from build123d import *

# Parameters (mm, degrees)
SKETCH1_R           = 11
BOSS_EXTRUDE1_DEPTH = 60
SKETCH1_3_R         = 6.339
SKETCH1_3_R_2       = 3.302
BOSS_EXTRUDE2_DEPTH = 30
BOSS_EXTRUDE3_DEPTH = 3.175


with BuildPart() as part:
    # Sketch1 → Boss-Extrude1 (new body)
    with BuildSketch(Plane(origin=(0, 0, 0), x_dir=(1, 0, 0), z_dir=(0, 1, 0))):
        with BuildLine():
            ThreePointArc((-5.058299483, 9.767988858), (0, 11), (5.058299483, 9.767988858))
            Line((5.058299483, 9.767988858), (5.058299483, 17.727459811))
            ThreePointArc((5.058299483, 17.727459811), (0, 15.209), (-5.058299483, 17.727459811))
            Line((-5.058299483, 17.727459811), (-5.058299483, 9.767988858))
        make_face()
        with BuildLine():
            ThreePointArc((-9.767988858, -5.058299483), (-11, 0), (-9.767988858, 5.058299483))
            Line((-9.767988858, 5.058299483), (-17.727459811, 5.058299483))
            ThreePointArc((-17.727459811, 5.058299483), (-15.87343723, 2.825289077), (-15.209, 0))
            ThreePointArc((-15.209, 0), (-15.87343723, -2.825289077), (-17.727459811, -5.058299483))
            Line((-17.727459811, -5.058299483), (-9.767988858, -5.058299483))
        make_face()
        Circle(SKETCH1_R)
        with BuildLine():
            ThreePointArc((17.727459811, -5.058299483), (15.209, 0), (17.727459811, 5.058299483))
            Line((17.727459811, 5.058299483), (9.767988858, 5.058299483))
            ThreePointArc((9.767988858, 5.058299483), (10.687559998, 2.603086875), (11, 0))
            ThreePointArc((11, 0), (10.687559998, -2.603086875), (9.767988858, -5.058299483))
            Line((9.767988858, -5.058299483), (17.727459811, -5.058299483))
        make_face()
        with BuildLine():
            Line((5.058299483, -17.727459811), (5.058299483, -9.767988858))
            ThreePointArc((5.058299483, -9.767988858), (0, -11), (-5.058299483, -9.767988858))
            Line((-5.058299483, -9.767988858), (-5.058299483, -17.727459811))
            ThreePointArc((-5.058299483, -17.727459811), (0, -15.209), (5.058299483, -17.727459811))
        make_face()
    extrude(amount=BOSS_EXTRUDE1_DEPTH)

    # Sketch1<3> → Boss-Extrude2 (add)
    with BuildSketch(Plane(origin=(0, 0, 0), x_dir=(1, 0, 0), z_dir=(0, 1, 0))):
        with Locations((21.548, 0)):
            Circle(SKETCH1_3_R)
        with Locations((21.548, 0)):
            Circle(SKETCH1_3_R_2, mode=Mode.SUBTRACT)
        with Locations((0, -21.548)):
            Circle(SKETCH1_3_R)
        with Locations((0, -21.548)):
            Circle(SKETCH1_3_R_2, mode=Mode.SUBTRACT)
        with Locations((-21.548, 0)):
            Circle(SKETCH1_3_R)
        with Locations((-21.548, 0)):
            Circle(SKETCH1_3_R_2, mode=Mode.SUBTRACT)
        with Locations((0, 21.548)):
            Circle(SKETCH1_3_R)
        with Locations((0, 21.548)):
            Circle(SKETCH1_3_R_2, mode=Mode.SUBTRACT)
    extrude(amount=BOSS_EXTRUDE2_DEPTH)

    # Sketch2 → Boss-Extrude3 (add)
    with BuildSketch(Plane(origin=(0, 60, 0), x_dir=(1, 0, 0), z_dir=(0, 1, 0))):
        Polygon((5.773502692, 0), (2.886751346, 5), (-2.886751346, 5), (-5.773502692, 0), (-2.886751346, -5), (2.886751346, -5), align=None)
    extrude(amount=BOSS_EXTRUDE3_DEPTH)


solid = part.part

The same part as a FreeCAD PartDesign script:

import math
import FreeCAD as App
import Part
import Sketcher
Q = App.Units.Quantity


def add_polygon(sketch, points):
    """Adds a closed chain of lines whose ends are joined by coincident constraints."""
    first, n = sketch.GeometryCount, len(points)
    for a, b in zip(points, points[1:] + points[:1]):
        sketch.addGeometry(Part.LineSegment(App.Vector(*a, 0), App.Vector(*b, 0)), False)
    for i in range(n):
        sketch.addConstraint(Sketcher.Constraint("Coincident", first + i, 2, first + (i + 1) % n, 1))

doc = App.newDocument("Part")
body = doc.addObject("PartDesign::Body", "Body")

# Sketch on XZ plane
sketch1 = body.newObject("Sketcher::SketchObject", "Sketch")
sketch1.AttachmentSupport = (doc.getObject("XZ_Plane"), [""])
sketch1.MapMode = "FlatFace"
sketch1.addGeometry(Part.LineSegment(App.Vector(5, -10, 0), App.Vector(5, -18, 0)), False)
sketch1.addGeometry(Part.ArcOfCircle(Part.Circle(App.Vector(0, -22, 0), App.Vector(0, 0, 1), 6), math.radians(37), math.radians(143)), False)
sketch1.addGeometry(Part.LineSegment(App.Vector(-5, -18, 0), App.Vector(-5, -10, 0)), False)
sketch1.addGeometry(Part.ArcOfCircle(Part.Circle(App.Vector(0, 0, 0), App.Vector(0, 0, 1), 11), math.radians(-153), math.radians(-117)), False)
sketch1.addGeometry(Part.LineSegment(App.Vector(-10, -5, 0), App.Vector(-18, -5, 0)), False)
sketch1.addGeometry(Part.ArcOfCircle(Part.Circle(App.Vector(-22, 0, 0), App.Vector(0, 0, 1), 6), math.radians(-53), math.radians(0)), False)
sketch1.addGeometry(Part.ArcOfCircle(Part.Circle(App.Vector(-22, 0, 0), App.Vector(0, 0, 1), 6), math.radians(0), math.radians(53)), False)
sketch1.addGeometry(Part.LineSegment(App.Vector(-18, 5, 0), App.Vector(-10, 5, 0)), False)
sketch1.addGeometry(Part.ArcOfCircle(Part.Circle(App.Vector(0, 0, 0), App.Vector(0, 0, 1), 11), math.radians(117), math.radians(153)), False)
sketch1.addGeometry(Part.LineSegment(App.Vector(-5, 10, 0), App.Vector(-5, 18, 0)), False)
sketch1.addGeometry(Part.ArcOfCircle(Part.Circle(App.Vector(0, 22, 0), App.Vector(0, 0, 1), 6), math.radians(-143), math.radians(-37)), False)
sketch1.addGeometry(Part.LineSegment(App.Vector(5, 18, 0), App.Vector(5, 10, 0)), False)
sketch1.addGeometry(Part.ArcOfCircle(Part.Circle(App.Vector(0, 0, 0), App.Vector(0, 0, 1), 11), math.radians(27), math.radians(63)), False)
sketch1.addGeometry(Part.LineSegment(App.Vector(10, 5, 0), App.Vector(18, 5, 0)), False)
sketch1.addGeometry(Part.ArcOfCircle(Part.Circle(App.Vector(22, 0, 0), App.Vector(0, 0, 1), 6), math.radians(127), math.radians(233)), False)
sketch1.addGeometry(Part.LineSegment(App.Vector(18, -5, 0), App.Vector(10, -5, 0)), False)
sketch1.addGeometry(Part.ArcOfCircle(Part.Circle(App.Vector(0, 0, 0), App.Vector(0, 0, 1), 11), math.radians(-63), math.radians(-27)), False)
sketch1.addConstraint(Sketcher.Constraint("Coincident", 0, 2, 1, 1))
sketch1.addConstraint(Sketcher.Constraint("Coincident", 1, 2, 2, 1))
sketch1.addConstraint(Sketcher.Constraint("Coincident", 2, 2, 3, 2))
sketch1.addConstraint(Sketcher.Constraint("Coincident", 3, 1, 4, 1))
sketch1.addConstraint(Sketcher.Constraint("Coincident", 4, 2, 5, 1))
sketch1.addConstraint(Sketcher.Constraint("Tangent", 5, 2, 6, 1))
sketch1.addConstraint(Sketcher.Constraint("Coincident", 6, 2, 7, 1))
sketch1.addConstraint(Sketcher.Constraint("Coincident", 7, 2, 8, 2))
sketch1.addConstraint(Sketcher.Constraint("Coincident", 8, 1, 9, 1))
sketch1.addConstraint(Sketcher.Constraint("Coincident", 9, 2, 10, 1))
sketch1.addConstraint(Sketcher.Constraint("Coincident", 10, 2, 11, 1))
sketch1.addConstraint(Sketcher.Constraint("Coincident", 11, 2, 12, 2))
sketch1.addConstraint(Sketcher.Constraint("Coincident", 12, 1, 13, 1))
sketch1.addConstraint(Sketcher.Constraint("Coincident", 13, 2, 14, 1))
sketch1.addConstraint(Sketcher.Constraint("Coincident", 14, 2, 15, 1))
sketch1.addConstraint(Sketcher.Constraint("Coincident", 15, 2, 16, 2))
sketch1.addConstraint(Sketcher.Constraint("Coincident", 16, 1, 0, 1))
sketch1.addConstraint(Sketcher.Constraint("Vertical", 0))
sketch1.addConstraint(Sketcher.Constraint("Vertical", 2))
sketch1.addConstraint(Sketcher.Constraint("Horizontal", 4))
sketch1.addConstraint(Sketcher.Constraint("Horizontal", 7))
sketch1.addConstraint(Sketcher.Constraint("Vertical", 9))
sketch1.addConstraint(Sketcher.Constraint("Vertical", 11))
sketch1.addConstraint(Sketcher.Constraint("Horizontal", 13))
sketch1.addConstraint(Sketcher.Constraint("Horizontal", 15))
sketch1.addConstraint(Sketcher.Constraint("Coincident", 3, 3, -1, 1))
sketch1.addConstraint(Sketcher.Constraint("Coincident", 8, 3, -1, 1))
sketch1.addConstraint(Sketcher.Constraint("Coincident", 12, 3, -1, 1))
sketch1.addConstraint(Sketcher.Constraint("Coincident", 16, 3, -1, 1))
sketch1.addConstraint(Sketcher.Constraint("Equal", 1, 5))
sketch1.addConstraint(Sketcher.Constraint("Equal", 5, 6))
sketch1.addConstraint(Sketcher.Constraint("Equal", 3, 8))
sketch1.addConstraint(Sketcher.Constraint("Equal", 6, 10))
sketch1.addConstraint(Sketcher.Constraint("Equal", 8, 12))
sketch1.addConstraint(Sketcher.Constraint("Equal", 10, 14))
sketch1.addConstraint(Sketcher.Constraint("Equal", 12, 16))
sketch1.addConstraint(Sketcher.Constraint("Symmetric", 1, 3, 10, 3, -1, 1))
sketch1.addConstraint(Sketcher.Constraint("Symmetric", 5, 3, 14, 3, -1, 1))
sketch1.addConstraint(Sketcher.Constraint("Symmetric", 0, 2, 1, 2, -2))
sketch1.addConstraint(Sketcher.Constraint("Symmetric", 6, 2, 13, 2, -2))
sketch1.addConstraint(Sketcher.Constraint("PointOnObject", 5, 2, -1))
sketch1.addConstraint(Sketcher.Constraint("Horizontal", 9, 2, 10, 2))
sketch1.addConstraint(Sketcher.Constraint("Horizontal", 4, 2, 14, 2))
sketch1.addConstraint(Sketcher.Constraint("Vertical", 4, 2, 6, 2))
sketch1.addConstraint(Sketcher.Constraint("Vertical", 2, 2, 8, 1))
sketch1.addConstraint(Sketcher.Constraint("Equal", 15, 0))
sketch1.addConstraint(Sketcher.Constraint("Radius", 3, 11.0))
sketch1.addConstraint(Sketcher.Constraint("Radius", 1, 6.339))
sketch1.addConstraint(Sketcher.Constraint("DistanceY", 1, 3, -1, 1, 21.548))
sketch1.addConstraint(Sketcher.Constraint("DistanceX", 5, 3, -1, 1, 21.548))
sketch1.addConstraint(Sketcher.Constraint("DistanceX", 4, 2, 4, 1, 7.959471))
pad1 = body.newObject("PartDesign::Pad", "Pad")
pad1.Profile = sketch1
pad1.Length = 60
pad1.Reversed = True

# Sketch on XZ plane
sketch2 = body.newObject("Sketcher::SketchObject", "Sketch001")
sketch2.AttachmentSupport = (doc.getObject("XZ_Plane"), [""])
sketch2.MapMode = "FlatFace"
sketch2.addGeometry(Part.Circle(App.Vector(21.5, 0, 0), App.Vector(0, 0, 1), 6.3), False)
sketch2.addGeometry(Part.Circle(App.Vector(21.5, 0, 0), App.Vector(0, 0, 1), 3.3), False)
sketch2.addGeometry(Part.Circle(App.Vector(0, 21.5, 0), App.Vector(0, 0, 1), 6.3), False)
sketch2.addGeometry(Part.Circle(App.Vector(0, 21.5, 0), App.Vector(0, 0, 1), 3.3), False)
sketch2.addGeometry(Part.Circle(App.Vector(-21.5, 0, 0), App.Vector(0, 0, 1), 6.3), False)
sketch2.addGeometry(Part.Circle(App.Vector(-21.5, 0, 0), App.Vector(0, 0, 1), 3.3), False)
sketch2.addGeometry(Part.Circle(App.Vector(0, -21.5, 0), App.Vector(0, 0, 1), 6.3), False)
sketch2.addGeometry(Part.Circle(App.Vector(0, -21.5, 0), App.Vector(0, 0, 1), 3.3), False)
sketch2.addConstraint(Sketcher.Constraint("Coincident", 1, 3, 0, 3))
sketch2.addConstraint(Sketcher.Constraint("Coincident", 3, 3, 2, 3))
sketch2.addConstraint(Sketcher.Constraint("Coincident", 5, 3, 4, 3))
sketch2.addConstraint(Sketcher.Constraint("Coincident", 7, 3, 6, 3))
sketch2.addConstraint(Sketcher.Constraint("Equal", 0, 2))
sketch2.addConstraint(Sketcher.Constraint("Equal", 1, 3))
sketch2.addConstraint(Sketcher.Constraint("Equal", 2, 4))
sketch2.addConstraint(Sketcher.Constraint("Equal", 3, 5))
sketch2.addConstraint(Sketcher.Constraint("Equal", 4, 6))
sketch2.addConstraint(Sketcher.Constraint("Equal", 5, 7))
sketch2.addConstraint(Sketcher.Constraint("Symmetric", 0, 3, 4, 3, -1, 1))
sketch2.addConstraint(Sketcher.Constraint("Symmetric", 2, 3, 6, 3, -1, 1))
sketch2.addConstraint(Sketcher.Constraint("PointOnObject", 0, 3, -1))
sketch2.addConstraint(Sketcher.Constraint("PointOnObject", 2, 3, -2))
sketch2.addConstraint(Sketcher.Constraint("Diameter", 0, 12.678))
sketch2.addConstraint(Sketcher.Constraint("Diameter", 1, 6.604))
sketch2.addConstraint(Sketcher.Constraint("DistanceX", -1, 1, 0, 3, 21.548))
sketch2.addConstraint(Sketcher.Constraint("DistanceY", -1, 1, 2, 3, 21.548))
pad2 = body.newObject("PartDesign::Pad", "Pad001")
pad2.Profile = sketch2
pad2.Length = 30
pad2.Reversed = True

# Sketch on XZ plane
sketch3 = body.newObject("Sketcher::SketchObject", "Sketch002")
sketch3.AttachmentSupport = (doc.getObject("XZ_Plane"), [""])
sketch3.MapMode = "FlatFace"
sketch3.AttachmentOffset = App.Placement(App.Vector(0, 0, -60), App.Rotation())
add_polygon(sketch3, [(6, 0), (3, -5), (-3, -5), (-6, 0), (-3, 5), (3, 5)])  # lines 0-5
sketch3.addConstraint(Sketcher.Constraint("Horizontal", 1))
sketch3.addConstraint(Sketcher.Constraint("Horizontal", 4))
sketch3.addConstraint(Sketcher.Constraint("Symmetric", 0, 2, 3, 2, -1, 1))
sketch3.addConstraint(Sketcher.Constraint("Symmetric", 2, 2, 5, 2, -1, 1))
sketch3.addConstraint(Sketcher.Constraint("PointOnObject", 2, 2, -1))
sketch3.addConstraint(Sketcher.Constraint("Parallel", 2, 5))
sketch3.addConstraint(Sketcher.Constraint("Vertical", 1, 2, 3, 2))
sketch3.addConstraint(Sketcher.Constraint("Angle", 0, Q("-120 deg")))
sketch3.addConstraint(Sketcher.Constraint("DistanceY", 0, 2, -1, 1, 5.0))
sketch3.addConstraint(Sketcher.Constraint("DistanceX", 1, 2, 1, 1, 5.773503))
pad3 = body.newObject("PartDesign::Pad", "Pad002")
pad3.Profile = sketch3
pad3.Length = 3.175
pad3.Reversed = True

doc.recompute()
